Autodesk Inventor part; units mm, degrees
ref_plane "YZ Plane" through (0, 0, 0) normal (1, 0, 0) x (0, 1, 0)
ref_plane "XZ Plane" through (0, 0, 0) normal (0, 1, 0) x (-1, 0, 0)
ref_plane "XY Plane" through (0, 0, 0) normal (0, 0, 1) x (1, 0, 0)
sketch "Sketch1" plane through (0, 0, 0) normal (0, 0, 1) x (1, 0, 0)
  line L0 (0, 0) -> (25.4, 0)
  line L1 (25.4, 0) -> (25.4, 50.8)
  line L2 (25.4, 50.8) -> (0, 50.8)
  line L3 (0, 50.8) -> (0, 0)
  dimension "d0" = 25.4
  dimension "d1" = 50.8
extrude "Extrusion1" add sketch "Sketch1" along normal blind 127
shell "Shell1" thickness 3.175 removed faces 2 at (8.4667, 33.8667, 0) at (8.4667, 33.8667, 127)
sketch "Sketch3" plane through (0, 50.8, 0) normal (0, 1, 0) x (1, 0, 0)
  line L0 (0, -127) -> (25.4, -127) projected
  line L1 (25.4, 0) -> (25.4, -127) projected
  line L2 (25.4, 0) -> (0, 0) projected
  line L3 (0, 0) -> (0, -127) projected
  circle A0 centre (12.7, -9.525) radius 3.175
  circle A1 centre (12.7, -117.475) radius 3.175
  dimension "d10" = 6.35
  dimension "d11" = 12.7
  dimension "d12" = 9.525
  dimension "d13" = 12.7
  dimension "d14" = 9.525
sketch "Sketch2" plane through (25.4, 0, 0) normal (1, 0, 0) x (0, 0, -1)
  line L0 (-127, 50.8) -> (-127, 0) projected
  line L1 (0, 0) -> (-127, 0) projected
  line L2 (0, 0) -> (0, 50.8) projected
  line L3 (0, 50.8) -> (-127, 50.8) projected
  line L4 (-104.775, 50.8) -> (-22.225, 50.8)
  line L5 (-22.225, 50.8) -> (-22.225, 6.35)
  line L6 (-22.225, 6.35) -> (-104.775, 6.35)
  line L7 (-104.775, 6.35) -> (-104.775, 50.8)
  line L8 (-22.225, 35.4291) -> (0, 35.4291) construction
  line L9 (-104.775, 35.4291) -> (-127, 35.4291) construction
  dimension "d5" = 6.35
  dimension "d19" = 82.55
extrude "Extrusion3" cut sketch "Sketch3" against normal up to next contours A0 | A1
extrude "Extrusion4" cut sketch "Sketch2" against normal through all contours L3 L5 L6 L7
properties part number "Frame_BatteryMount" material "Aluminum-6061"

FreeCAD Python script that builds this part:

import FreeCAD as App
import Part
import Sketcher

V = App.Vector
Q = App.Units.Quantity


def faces_at(feature, points):
    """Names of the faces that lie closest to the given points."""
    faces = feature.Shape.Faces
    near = lambda p: min(range(len(faces)), key=lambda i: faces[i].distToShape(Part.Vertex(*p))[0])
    return sorted({f"Face{near(p) + 1}" for p in points})

doc = App.newDocument("Part")
params = doc.addObject("Spreadsheet::Sheet", "Params")
for row, (alias, value) in enumerate([
    ("sketch1_width", "1 in"),
    ("sketch1_height", "2 in"),
    ("pad1_length", "5 in"),
    ("thickness_wall", "0.125 in"),
    ("sketch2_diameter", "0.25 in"),
    ("pocket1_length", "0.125 in"),
    ("sketch3_height", "3.25 in"),
], start=1):
    params.set(f"A{row}", alias)
    params.set(f"B{row}", "=" + value)
    params.setAlias(f"B{row}", alias)

body = doc.addObject("PartDesign::Body", "Body")

# Sketch on XY plane
sketch1 = doc.addObject("Sketcher::SketchObject", "Sketch")
body.addObject(sketch1)
sketch1.AttachmentSupport = (doc.XY_Plane, [""])
sketch1.MapMode = "FlatFace"
sketch1.addGeometry([
    Part.LineSegment(V(0, 51, 0), V(0, 0, 0)),
    Part.LineSegment(V(0, 0, 0), V(25, 0, 0)),
    Part.LineSegment(V(25, 0, 0), V(25, 51, 0)),
    Part.LineSegment(V(25, 51, 0), V(0, 51, 0)),
], False)
sketch1.addConstraint([
    Sketcher.Constraint("Coincident", 0, 2, 1, 1),
    Sketcher.Constraint("Coincident", 1, 2, 2, 1),
    Sketcher.Constraint("Coincident", 2, 2, 3, 1),
    Sketcher.Constraint("Coincident", 3, 2, 0, 1),
    Sketcher.Constraint("Vertical", 0),
    Sketcher.Constraint("Horizontal", 1),
    Sketcher.Constraint("Vertical", 2),
    Sketcher.Constraint("Horizontal", 3),
    Sketcher.Constraint("Coincident", 0, 2, -1, 1),
    Sketcher.Constraint("DistanceX", 1, 1, 1, 2, Q("1 in")),
    Sketcher.Constraint("DistanceY", 0, 2, 0, 1, Q("2 in")),
])
sketch1.setExpression("Constraints[9]", "Params.sketch1_width")
sketch1.setExpression("Constraints[10]", "Params.sketch1_height")
pad1 = doc.addObject("PartDesign::Pad", "Pad")
body.addObject(pad1)
pad1.Profile = sketch1
pad1.setExpression("Length", "Params.pad1_length")
doc.recompute()

thickness = doc.addObject("PartDesign::Thickness", "Thickness")
body.addObject(thickness)
thickness.Base = (pad1, faces_at(pad1, [(8.467, 33.867, 0), (8.467, 33.867, 127)]))
thickness.setExpression("Value", "Params.thickness_wall")
thickness.Reversed = True
thickness.Join = "Intersection"

# Sketch on XZ plane
sketch2 = doc.addObject("Sketcher::SketchObject", "Sketch001")
body.addObject(sketch2)
sketch2.AttachmentSupport = (doc.XZ_Plane, [""])
sketch2.MapMode = "FlatFace"
sketch2.AttachmentOffset = App.Placement(V(0, 0, -2 * 25.4), App.Rotation())
sketch2.addGeometry([
    Part.Circle(V(12.7, 9.5, 0), V(0, 0, 1), 3.2),
    Part.Circle(V(12.7, 117.5, 0), V(0, 0, 1), 3.2),
], False)
sketch2.addConstraint([
    Sketcher.Constraint("Equal", 0, 1),
    Sketcher.Constraint("Vertical", 0, 3, 1, 3),
    Sketcher.Constraint("Diameter", 0, Q("0.25 in")),
    Sketcher.Constraint("DistanceX", -1, 1, 0, 3, Q("0.5 in")),
    Sketcher.Constraint("DistanceY", -1, 1, 0, 3, Q("0.375 in")),
    Sketcher.Constraint("DistanceY", 0, 3, 1, 3, Q("4.25 in")),
])
sketch2.setExpression("Constraints[2]", "Params.sketch2_diameter")
pocket1 = doc.addObject("PartDesign::Pocket", "Pocket")
body.addObject(pocket1)
pocket1.Profile = sketch2
pocket1.setExpression("Length", "Params.pocket1_length")
pocket1.Reversed = True

# Sketch on YZ plane
sketch3 = doc.addObject("Sketcher::SketchObject", "Sketch002")
body.addObject(sketch3)
sketch3.AttachmentSupport = (doc.YZ_Plane, [""])
sketch3.MapMode = "FlatFace"
sketch3.AttachmentOffset = App.Placement(V(0, 0, 1 * 25.4), App.Rotation())
sketch3.addGeometry([
    Part.LineSegment(V(51, 22, 0), V(51, 105, 0)),
    Part.LineSegment(V(51, 105, 0), V(6, 105, 0)),
    Part.LineSegment(V(6, 105, 0), V(6, 22, 0)),
    Part.LineSegment(V(6, 22, 0), V(51, 22, 0)),
], False)
sketch3.addConstraint([
    Sketcher.Constraint("Coincident", 0, 2, 1, 1),
    Sketcher.Constraint("Coincident", 1, 2, 2, 1),
    Sketcher.Constraint("Coincident", 2, 2, 3, 1),
    Sketcher.Constraint("Coincident", 3, 2, 0, 1),
    Sketcher.Constraint("Vertical", 0),
    Sketcher.Constraint("Horizontal", 1),
    Sketcher.Constraint("Vertical", 2),
    Sketcher.Constraint("Horizontal", 3),
    Sketcher.Constraint("DistanceY", 0, 1, 0, 2, Q("3.25 in")),
    Sketcher.Constraint("DistanceX", -1, 1, 1, 2, Q("0.25 in")),
    Sketcher.Constraint("DistanceX", -1, 1, 0, 2, Q("2 in")),
    Sketcher.Constraint("DistanceY", -1, 1, 0, 2, Q("4.125 in")),
])
sketch3.setExpression("Constraints[8]", "Params.sketch3_height")
pocket2 = doc.addObject("PartDesign::Pocket", "Pocket001")
body.addObject(pocket2)
pocket2.Profile = sketch3
pocket2.Type = "ThroughAll"

doc.recompute()
